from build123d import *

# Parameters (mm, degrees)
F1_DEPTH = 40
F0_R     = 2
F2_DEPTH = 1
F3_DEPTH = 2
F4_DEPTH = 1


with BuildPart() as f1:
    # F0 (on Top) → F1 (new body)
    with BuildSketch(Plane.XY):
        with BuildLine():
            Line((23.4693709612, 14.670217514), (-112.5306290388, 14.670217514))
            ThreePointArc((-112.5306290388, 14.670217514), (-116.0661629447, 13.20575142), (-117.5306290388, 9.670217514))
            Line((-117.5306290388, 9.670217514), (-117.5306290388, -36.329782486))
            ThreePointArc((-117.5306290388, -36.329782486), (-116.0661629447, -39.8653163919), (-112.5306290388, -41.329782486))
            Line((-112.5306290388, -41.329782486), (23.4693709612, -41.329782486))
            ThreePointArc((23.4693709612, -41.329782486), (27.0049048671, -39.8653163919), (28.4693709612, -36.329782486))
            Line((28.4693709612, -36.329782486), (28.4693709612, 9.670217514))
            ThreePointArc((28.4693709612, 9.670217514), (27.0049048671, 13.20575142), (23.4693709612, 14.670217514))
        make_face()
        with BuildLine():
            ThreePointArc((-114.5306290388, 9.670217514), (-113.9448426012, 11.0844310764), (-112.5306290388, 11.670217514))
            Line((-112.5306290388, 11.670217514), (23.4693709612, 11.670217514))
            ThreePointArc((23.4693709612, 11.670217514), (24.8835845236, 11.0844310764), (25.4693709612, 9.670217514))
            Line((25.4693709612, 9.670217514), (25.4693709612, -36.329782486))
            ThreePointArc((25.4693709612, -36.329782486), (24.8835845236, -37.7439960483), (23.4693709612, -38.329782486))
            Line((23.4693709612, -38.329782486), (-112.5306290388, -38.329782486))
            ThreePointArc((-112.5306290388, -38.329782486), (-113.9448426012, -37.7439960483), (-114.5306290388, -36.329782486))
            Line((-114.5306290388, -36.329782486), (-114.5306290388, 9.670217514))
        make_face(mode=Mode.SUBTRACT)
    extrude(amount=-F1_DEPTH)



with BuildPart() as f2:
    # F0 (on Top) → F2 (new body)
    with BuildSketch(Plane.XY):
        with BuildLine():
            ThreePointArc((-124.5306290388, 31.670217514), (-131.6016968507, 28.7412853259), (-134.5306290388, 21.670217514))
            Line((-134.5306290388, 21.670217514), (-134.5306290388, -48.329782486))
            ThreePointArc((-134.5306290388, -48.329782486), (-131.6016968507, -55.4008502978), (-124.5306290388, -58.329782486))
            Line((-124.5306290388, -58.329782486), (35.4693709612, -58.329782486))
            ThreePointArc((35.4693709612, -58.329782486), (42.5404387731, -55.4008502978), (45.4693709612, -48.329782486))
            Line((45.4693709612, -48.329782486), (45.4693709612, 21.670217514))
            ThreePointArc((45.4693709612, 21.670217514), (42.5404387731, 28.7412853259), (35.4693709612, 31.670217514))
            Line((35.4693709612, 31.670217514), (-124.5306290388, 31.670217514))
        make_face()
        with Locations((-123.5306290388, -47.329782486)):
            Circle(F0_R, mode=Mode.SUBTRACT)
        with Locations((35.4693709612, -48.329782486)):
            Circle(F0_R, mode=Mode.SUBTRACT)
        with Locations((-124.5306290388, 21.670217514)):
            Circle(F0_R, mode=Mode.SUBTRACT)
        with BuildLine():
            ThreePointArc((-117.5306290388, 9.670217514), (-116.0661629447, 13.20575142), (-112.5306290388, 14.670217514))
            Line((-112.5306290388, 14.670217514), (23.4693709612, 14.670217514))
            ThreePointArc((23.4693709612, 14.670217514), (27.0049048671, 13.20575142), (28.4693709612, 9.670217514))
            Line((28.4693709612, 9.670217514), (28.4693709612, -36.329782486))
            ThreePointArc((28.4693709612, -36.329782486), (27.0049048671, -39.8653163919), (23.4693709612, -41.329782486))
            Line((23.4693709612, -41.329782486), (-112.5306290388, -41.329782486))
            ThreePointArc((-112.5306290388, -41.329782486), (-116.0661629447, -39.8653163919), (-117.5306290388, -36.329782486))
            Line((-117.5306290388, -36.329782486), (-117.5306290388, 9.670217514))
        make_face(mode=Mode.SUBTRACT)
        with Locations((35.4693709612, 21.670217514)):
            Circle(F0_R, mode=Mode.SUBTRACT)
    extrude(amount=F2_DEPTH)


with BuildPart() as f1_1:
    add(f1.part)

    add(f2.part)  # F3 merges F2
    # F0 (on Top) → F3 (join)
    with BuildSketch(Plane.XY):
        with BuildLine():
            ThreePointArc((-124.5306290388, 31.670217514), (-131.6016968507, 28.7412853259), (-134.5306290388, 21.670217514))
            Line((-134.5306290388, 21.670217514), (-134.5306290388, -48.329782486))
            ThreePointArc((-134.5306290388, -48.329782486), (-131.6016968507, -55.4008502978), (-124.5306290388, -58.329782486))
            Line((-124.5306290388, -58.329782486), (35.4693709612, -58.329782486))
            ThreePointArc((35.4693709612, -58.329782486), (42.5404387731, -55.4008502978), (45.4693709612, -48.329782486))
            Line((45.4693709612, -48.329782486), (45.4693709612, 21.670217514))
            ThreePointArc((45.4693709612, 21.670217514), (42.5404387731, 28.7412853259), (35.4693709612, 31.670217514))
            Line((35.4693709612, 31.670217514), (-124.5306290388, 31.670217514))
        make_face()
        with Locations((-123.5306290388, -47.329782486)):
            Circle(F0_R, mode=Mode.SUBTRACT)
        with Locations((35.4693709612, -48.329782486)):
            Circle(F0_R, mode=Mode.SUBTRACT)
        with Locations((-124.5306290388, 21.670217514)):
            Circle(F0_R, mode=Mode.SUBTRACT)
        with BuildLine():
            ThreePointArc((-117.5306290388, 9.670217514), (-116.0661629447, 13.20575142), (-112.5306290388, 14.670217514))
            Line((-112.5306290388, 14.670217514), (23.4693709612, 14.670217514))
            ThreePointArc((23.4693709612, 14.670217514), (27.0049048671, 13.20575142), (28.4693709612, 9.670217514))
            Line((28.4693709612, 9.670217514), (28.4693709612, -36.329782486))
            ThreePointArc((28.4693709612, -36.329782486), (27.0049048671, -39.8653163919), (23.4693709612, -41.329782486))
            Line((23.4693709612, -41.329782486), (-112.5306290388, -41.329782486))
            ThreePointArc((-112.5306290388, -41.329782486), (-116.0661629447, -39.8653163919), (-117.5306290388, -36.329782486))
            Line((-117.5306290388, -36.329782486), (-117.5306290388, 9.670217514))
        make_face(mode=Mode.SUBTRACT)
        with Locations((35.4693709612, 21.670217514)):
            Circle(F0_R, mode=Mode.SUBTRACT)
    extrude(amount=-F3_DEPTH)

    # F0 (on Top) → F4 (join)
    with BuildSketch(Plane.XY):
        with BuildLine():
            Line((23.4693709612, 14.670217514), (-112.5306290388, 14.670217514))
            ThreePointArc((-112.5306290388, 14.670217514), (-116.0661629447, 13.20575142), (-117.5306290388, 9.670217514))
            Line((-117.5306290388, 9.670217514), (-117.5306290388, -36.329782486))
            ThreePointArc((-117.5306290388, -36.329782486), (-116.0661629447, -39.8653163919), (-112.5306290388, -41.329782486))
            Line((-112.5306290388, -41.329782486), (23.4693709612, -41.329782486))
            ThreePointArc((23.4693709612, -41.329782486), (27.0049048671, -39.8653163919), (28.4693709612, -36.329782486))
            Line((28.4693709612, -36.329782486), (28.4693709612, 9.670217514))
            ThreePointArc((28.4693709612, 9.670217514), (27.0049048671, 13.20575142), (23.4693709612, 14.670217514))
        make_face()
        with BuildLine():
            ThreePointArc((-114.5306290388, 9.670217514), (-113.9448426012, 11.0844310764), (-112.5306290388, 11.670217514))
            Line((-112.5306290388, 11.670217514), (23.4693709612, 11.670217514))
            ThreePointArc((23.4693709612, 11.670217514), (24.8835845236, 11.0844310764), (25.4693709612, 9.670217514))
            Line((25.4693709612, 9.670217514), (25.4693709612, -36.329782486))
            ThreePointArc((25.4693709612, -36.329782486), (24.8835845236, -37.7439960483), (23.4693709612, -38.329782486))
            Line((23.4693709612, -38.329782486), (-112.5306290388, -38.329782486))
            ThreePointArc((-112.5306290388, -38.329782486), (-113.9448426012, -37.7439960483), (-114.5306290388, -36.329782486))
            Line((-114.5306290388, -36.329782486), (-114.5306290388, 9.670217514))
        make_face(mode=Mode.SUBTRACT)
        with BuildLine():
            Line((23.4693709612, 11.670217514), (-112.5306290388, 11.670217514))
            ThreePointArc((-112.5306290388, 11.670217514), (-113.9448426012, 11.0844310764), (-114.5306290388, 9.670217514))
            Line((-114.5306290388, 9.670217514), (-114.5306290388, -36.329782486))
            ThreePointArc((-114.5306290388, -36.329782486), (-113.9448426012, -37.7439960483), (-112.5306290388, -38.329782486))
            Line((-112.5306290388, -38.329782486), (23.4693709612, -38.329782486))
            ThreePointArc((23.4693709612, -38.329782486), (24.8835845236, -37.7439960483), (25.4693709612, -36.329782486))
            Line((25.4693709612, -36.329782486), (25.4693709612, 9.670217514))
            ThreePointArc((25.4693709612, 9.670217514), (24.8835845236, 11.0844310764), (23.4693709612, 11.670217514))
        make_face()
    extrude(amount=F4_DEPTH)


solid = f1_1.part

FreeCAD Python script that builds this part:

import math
import FreeCAD as App
import Part
import Sketcher

V = App.Vector

doc = App.newDocument("Part")
body = doc.addObject("PartDesign::Body", "Body")

# Sketch on XY plane
sketch1 = body.newObject("Sketcher::SketchObject", "Sketch")
sketch1.AttachmentSupport = (doc.getObject("XY_Plane"), [""])
sketch1.MapMode = "FlatFace"
sketch1.addGeometry([
    Part.LineSegment(V(23.5, 14.7, 0), V(-112.5, 14.7, 0)),  # 0
    Part.ArcOfCircle(Part.Circle(V(-112.5, 9.7, 0), V(0, 0, 1), 5), math.radians(90), math.radians(180)),  # 1
    Part.LineSegment(V(-117.5, 9.7, 0), V(-117.5, -36.3, 0)),  # 2
    Part.ArcOfCircle(Part.Circle(V(-112.5, -36.3, 0), V(0, 0, 1), 5), math.radians(180), math.radians(270)),  # 3
    Part.LineSegment(V(-112.5, -41.3, 0), V(23.5, -41.3, 0)),  # 4
    Part.ArcOfCircle(Part.Circle(V(23.5, -36.3, 0), V(0, 0, 1), 5), math.radians(-90), math.radians(0)),  # 5
    Part.LineSegment(V(28.5, -36.3, 0), V(28.5, 9.7, 0)),  # 6
    Part.ArcOfCircle(Part.Circle(V(23.5, 9.7, 0), V(0, 0, 1), 5), math.radians(0), math.radians(90)),  # 7
    Part.LineSegment(V(-114.5, -36.3, 0), V(-114.5, 9.7, 0)),  # 8
    Part.ArcOfCircle(Part.Circle(V(-112.5, 9.7, 0), V(0, 0, 1), 2), math.radians(90), math.radians(180)),  # 9
    Part.LineSegment(V(-112.5, 11.7, 0), V(23.5, 11.7, 0)),  # 10
    Part.ArcOfCircle(Part.Circle(V(23.5, 9.7, 0), V(0, 0, 1), 2), math.radians(0), math.radians(90)),  # 11
    Part.LineSegment(V(25.5, 9.7, 0), V(25.5, -36.3, 0)),  # 12
    Part.ArcOfCircle(Part.Circle(V(23.5, -36.3, 0), V(0, 0, 1), 2), math.radians(-90), math.radians(0)),  # 13
    Part.LineSegment(V(23.5, -38.3, 0), V(-112.5, -38.3, 0)),  # 14
    Part.ArcOfCircle(Part.Circle(V(-112.5, -36.3, 0), V(0, 0, 1), 2), math.radians(180), math.radians(270)),  # 15
], False)
sketch1.addConstraint([
    Sketcher.Constraint("Tangent", 0, 2, 1, 1),
    Sketcher.Constraint("Tangent", 1, 2, 2, 1),
    Sketcher.Constraint("Tangent", 2, 2, 3, 1),
    Sketcher.Constraint("Tangent", 3, 2, 4, 1),
    Sketcher.Constraint("Tangent", 4, 2, 5, 1),
    Sketcher.Constraint("Tangent", 5, 2, 6, 1),
    Sketcher.Constraint("Tangent", 6, 2, 7, 1),
    Sketcher.Constraint("Tangent", 7, 2, 0, 1),
    Sketcher.Constraint("Tangent", 8, 2, 9, 2),
    Sketcher.Constraint("Tangent", 9, 1, 10, 1),
    Sketcher.Constraint("Tangent", 10, 2, 11, 2),
    Sketcher.Constraint("Tangent", 11, 1, 12, 1),
    Sketcher.Constraint("Tangent", 12, 2, 13, 2),
    Sketcher.Constraint("Tangent", 13, 1, 14, 1),
    Sketcher.Constraint("Tangent", 14, 2, 15, 2),
    Sketcher.Constraint("Tangent", 15, 1, 8, 1),
    Sketcher.Constraint("Horizontal", 0),
    Sketcher.Constraint("Vertical", 2),
    Sketcher.Constraint("Horizontal", 4),
    Sketcher.Constraint("Vertical", 6),
    Sketcher.Constraint("Vertical", 8),
    Sketcher.Constraint("Horizontal", 10),
    Sketcher.Constraint("Vertical", 12),
    Sketcher.Constraint("Horizontal", 14),
    Sketcher.Constraint("Coincident", 9, 3, 1, 3),
    Sketcher.Constraint("Coincident", 11, 3, 7, 3),
    Sketcher.Constraint("Coincident", 13, 3, 5, 3),
    Sketcher.Constraint("Equal", 1, 3),
    Sketcher.Constraint("Equal", 3, 5),
    Sketcher.Constraint("Equal", 5, 7),
    Sketcher.Constraint("Equal", 13, 15),
    Sketcher.Constraint("Radius", 1, 5.0),
    Sketcher.Constraint("Radius", 9, 2.0),
    Sketcher.Constraint("DistanceX", 0, 2, 0, 1, 136.0),
    Sketcher.Constraint("DistanceY", 2, 2, 2, 1, 46.0),
    Sketcher.Constraint("DistanceX", 1, 3, -1, 1, 112.530629),
    Sketcher.Constraint("DistanceY", -1, 1, 1, 3, 9.670218),
])
pad1 = body.newObject("PartDesign::Pad", "Pad")
pad1.Profile = sketch1
pad1.Length = 40
pad1.Reversed = True
body2 = doc.addObject("PartDesign::Body", "Body001")

# Sketch on XY plane
sketch2 = body2.newObject("Sketcher::SketchObject", "Sketch001")
sketch2.AttachmentSupport = (doc.getObject("XY_Plane001"), [""])
sketch2.MapMode = "FlatFace"
sketch2.addGeometry([
    Part.ArcOfCircle(Part.Circle(V(-124.5, 21.7, 0), V(0, 0, 1), 10), math.radians(90), math.radians(180)),  # 0
    Part.LineSegment(V(-134.5, 21.7, 0), V(-134.5, -48.3, 0)),  # 1
    Part.ArcOfCircle(Part.Circle(V(-124.5, -48.3, 0), V(0, 0, 1), 10), math.radians(180), math.radians(270)),  # 2
    Part.LineSegment(V(-124.5, -58.3, 0), V(35.5, -58.3, 0)),  # 3
    Part.ArcOfCircle(Part.Circle(V(35.5, -48.3, 0), V(0, 0, 1), 10), math.radians(-90), math.radians(0)),  # 4
    Part.LineSegment(V(45.5, -48.3, 0), V(45.5, 21.7, 0)),  # 5
    Part.ArcOfCircle(Part.Circle(V(35.5, 21.7, 0), V(0, 0, 1), 10), math.radians(0), math.radians(90)),  # 6
    Part.LineSegment(V(35.5, 31.7, 0), V(-124.5, 31.7, 0)),  # 7
    Part.Circle(V(-123.5, -47.3, 0), V(0, 0, 1), 2),  # 8
    Part.Circle(V(35.5, -48.3, 0), V(0, 0, 1), 2),  # 9
    Part.Circle(V(-124.5, 21.7, 0), V(0, 0, 1), 2),  # 10
    Part.LineSegment(V(-117.5, -36.3, 0), V(-117.5, 9.7, 0)),  # 11
    Part.ArcOfCircle(Part.Circle(V(-112.5, 9.7, 0), V(0, 0, 1), 5), math.radians(90), math.radians(180)),  # 12
    Part.LineSegment(V(-112.5, 14.7, 0), V(23.5, 14.7, 0)),  # 13
    Part.ArcOfCircle(Part.Circle(V(23.5, 9.7, 0), V(0, 0, 1), 5), math.radians(0), math.radians(90)),  # 14
    Part.LineSegment(V(28.5, 9.7, 0), V(28.5, -36.3, 0)),  # 15
    Part.ArcOfCircle(Part.Circle(V(23.5, -36.3, 0), V(0, 0, 1), 5), math.radians(-90), math.radians(0)),  # 16
    Part.LineSegment(V(23.5, -41.3, 0), V(-112.5, -41.3, 0)),  # 17
    Part.ArcOfCircle(Part.Circle(V(-112.5, -36.3, 0), V(0, 0, 1), 5), math.radians(180), math.radians(270)),  # 18
    Part.Circle(V(35.5, 21.7, 0), V(0, 0, 1), 2),  # 19
], False)
sketch2.addConstraint([
    Sketcher.Constraint("Tangent", 0, 2, 1, 1),
    Sketcher.Constraint("Tangent", 1, 2, 2, 1),
    Sketcher.Constraint("Tangent", 2, 2, 3, 1),
    Sketcher.Constraint("Tangent", 3, 2, 4, 1),
    Sketcher.Constraint("Tangent", 4, 2, 5, 1),
    Sketcher.Constraint("Tangent", 5, 2, 6, 1),
    Sketcher.Constraint("Tangent", 6, 2, 7, 1),
    Sketcher.Constraint("Tangent", 7, 2, 0, 1),
    Sketcher.Constraint("Tangent", 11, 2, 12, 2),
    Sketcher.Constraint("Tangent", 12, 1, 13, 1),
    Sketcher.Constraint("Tangent", 13, 2, 14, 2),
    Sketcher.Constraint("Tangent", 14, 1, 15, 1),
    Sketcher.Constraint("Tangent", 15, 2, 16, 2),
    Sketcher.Constraint("Tangent", 16, 1, 17, 1),
    Sketcher.Constraint("Tangent", 17, 2, 18, 2),
    Sketcher.Constraint("Tangent", 18, 1, 11, 1),
    Sketcher.Constraint("Vertical", 1),
    Sketcher.Constraint("Horizontal", 3),
    Sketcher.Constraint("Vertical", 5),
    Sketcher.Constraint("Horizontal", 7),
    Sketcher.Constraint("Vertical", 11),
    Sketcher.Constraint("Horizontal", 13),
    Sketcher.Constraint("Vertical", 15),
    Sketcher.Constraint("Horizontal", 17),
    Sketcher.Constraint("Coincident", 9, 3, 4, 3),
    Sketcher.Constraint("Coincident", 10, 3, 0, 3),
    Sketcher.Constraint("Coincident", 19, 3, 6, 3),
    Sketcher.Constraint("Equal", 0, 2),
    Sketcher.Constraint("Equal", 2, 4),
    Sketcher.Constraint("Equal", 4, 6),
    Sketcher.Constraint("Equal", 8, 9),
    Sketcher.Constraint("Equal", 9, 10),
    Sketcher.Constraint("Equal", 12, 14),
    Sketcher.Constraint("Equal", 14, 16),
    Sketcher.Constraint("Equal", 16, 18),
    Sketcher.Constraint("Equal", 10, 19),
    Sketcher.Constraint("Diameter", 8, 4.0),
    Sketcher.Constraint("Radius", 0, 10.0),
    Sketcher.Constraint("Radius", 12, 5.0),
    Sketcher.Constraint("DistanceX", 3, 1, 3, 2, 160.0),
    Sketcher.Constraint("DistanceX", 13, 1, 13, 2, 136.0),
    Sketcher.Constraint("DistanceY", 1, 2, 1, 1, 70.0),
    Sketcher.Constraint("DistanceY", 11, 1, 11, 2, 46.0),
    Sketcher.Constraint("DistanceX", 2, 3, 8, 3, 1.0),
    Sketcher.Constraint("DistanceY", 2, 3, 8, 3, 1.0),
    Sketcher.Constraint("DistanceX", 0, 3, 12, 3, 12.0),
    Sketcher.Constraint("DistanceY", 12, 3, 0, 3, 12.0),
    Sketcher.Constraint("DistanceX", 0, 3, -1, 1, 124.530629),
    Sketcher.Constraint("DistanceY", -1, 1, 0, 3, 21.670218),
])
pad2 = body2.newObject("PartDesign::Pad", "Pad001")
pad2.Profile = sketch2
pad2.Length = 1
body.AllowCompound = True
doc.recompute()

boolean = body.newObject("PartDesign::Boolean", "Boolean")
boolean.Type = "Fuse"
boolean.addObjects([body2])

# Sketch on XY plane
sketch3 = body.newObject("Sketcher::SketchObject", "Sketch002")
sketch3.AttachmentSupport = (doc.getObject("XY_Plane"), [""])
sketch3.MapMode = "FlatFace"
sketch3.addGeometry([
    Part.ArcOfCircle(Part.Circle(V(-124.5, 21.7, 0), V(0, 0, 1), 10), math.radians(90), math.radians(180)),  # 0
    Part.LineSegment(V(-134.5, 21.7, 0), V(-134.5, -48.3, 0)),  # 1
    Part.ArcOfCircle(Part.Circle(V(-124.5, -48.3, 0), V(0, 0, 1), 10), math.radians(180), math.radians(270)),  # 2
    Part.LineSegment(V(-124.5, -58.3, 0), V(35.5, -58.3, 0)),  # 3
    Part.ArcOfCircle(Part.Circle(V(35.5, -48.3, 0), V(0, 0, 1), 10), math.radians(-90), math.radians(0)),  # 4
    Part.LineSegment(V(45.5, -48.3, 0), V(45.5, 21.7, 0)),  # 5
    Part.ArcOfCircle(Part.Circle(V(35.5, 21.7, 0), V(0, 0, 1), 10), math.radians(0), math.radians(90)),  # 6
    Part.LineSegment(V(35.5, 31.7, 0), V(-124.5, 31.7, 0)),  # 7
    Part.Circle(V(-123.5, -47.3, 0), V(0, 0, 1), 2),  # 8
    Part.Circle(V(35.5, -48.3, 0), V(0, 0, 1), 2),  # 9
    Part.Circle(V(-124.5, 21.7, 0), V(0, 0, 1), 2),  # 10
    Part.LineSegment(V(-117.5, -36.3, 0), V(-117.5, 9.7, 0)),  # 11
    Part.ArcOfCircle(Part.Circle(V(-112.5, 9.7, 0), V(0, 0, 1), 5), math.radians(90), math.radians(180)),  # 12
    Part.LineSegment(V(-112.5, 14.7, 0), V(23.5, 14.7, 0)),  # 13
    Part.ArcOfCircle(Part.Circle(V(23.5, 9.7, 0), V(0, 0, 1), 5), math.radians(0), math.radians(90)),  # 14
    Part.LineSegment(V(28.5, 9.7, 0), V(28.5, -36.3, 0)),  # 15
    Part.ArcOfCircle(Part.Circle(V(23.5, -36.3, 0), V(0, 0, 1), 5), math.radians(-90), math.radians(0)),  # 16
    Part.LineSegment(V(23.5, -41.3, 0), V(-112.5, -41.3, 0)),  # 17
    Part.ArcOfCircle(Part.Circle(V(-112.5, -36.3, 0), V(0, 0, 1), 5), math.radians(180), math.radians(270)),  # 18
    Part.Circle(V(35.5, 21.7, 0), V(0, 0, 1), 2),  # 19
], False)
sketch3.addConstraint([
    Sketcher.Constraint("Tangent", 0, 2, 1, 1),
    Sketcher.Constraint("Tangent", 1, 2, 2, 1),
    Sketcher.Constraint("Tangent", 2, 2, 3, 1),
    Sketcher.Constraint("Tangent", 3, 2, 4, 1),
    Sketcher.Constraint("Tangent", 4, 2, 5, 1),
    Sketcher.Constraint("Tangent", 5, 2, 6, 1),
    Sketcher.Constraint("Tangent", 6, 2, 7, 1),
    Sketcher.Constraint("Tangent", 7, 2, 0, 1),
    Sketcher.Constraint("Tangent", 11, 2, 12, 2),
    Sketcher.Constraint("Tangent", 12, 1, 13, 1),
    Sketcher.Constraint("Tangent", 13, 2, 14, 2),
    Sketcher.Constraint("Tangent", 14, 1, 15, 1),
    Sketcher.Constraint("Tangent", 15, 2, 16, 2),
    Sketcher.Constraint("Tangent", 16, 1, 17, 1),
    Sketcher.Constraint("Tangent", 17, 2, 18, 2),
    Sketcher.Constraint("Tangent", 18, 1, 11, 1),
    Sketcher.Constraint("Vertical", 1),
    Sketcher.Constraint("Horizontal", 3),
    Sketcher.Constraint("Vertical", 5),
    Sketcher.Constraint("Horizontal", 7),
    Sketcher.Constraint("Vertical", 11),
    Sketcher.Constraint("Horizontal", 13),
    Sketcher.Constraint("Vertical", 15),
    Sketcher.Constraint("Horizontal", 17),
    Sketcher.Constraint("Coincident", 9, 3, 4, 3),
    Sketcher.Constraint("Coincident", 10, 3, 0, 3),
    Sketcher.Constraint("Coincident", 19, 3, 6, 3),
    Sketcher.Constraint("Equal", 0, 2),
    Sketcher.Constraint("Equal", 2, 4),
    Sketcher.Constraint("Equal", 4, 6),
    Sketcher.Constraint("Equal", 8, 9),
    Sketcher.Constraint("Equal", 9, 10),
    Sketcher.Constraint("Equal", 12, 14),
    Sketcher.Constraint("Equal", 14, 16),
    Sketcher.Constraint("Equal", 16, 18),
    Sketcher.Constraint("Equal", 10, 19),
    Sketcher.Constraint("Diameter", 8, 4.0),
    Sketcher.Constraint("Radius", 0, 10.0),
    Sketcher.Constraint("Radius", 12, 5.0),
    Sketcher.Constraint("DistanceX", 3, 1, 3, 2, 160.0),
    Sketcher.Constraint("DistanceX", 13, 1, 13, 2, 136.0),
    Sketcher.Constraint("DistanceY", 1, 2, 1, 1, 70.0),
    Sketcher.Constraint("DistanceY", 11, 1, 11, 2, 46.0),
    Sketcher.Constraint("DistanceX", 2, 3, 8, 3, 1.0),
    Sketcher.Constraint("DistanceY", 2, 3, 8, 3, 1.0),
    Sketcher.Constraint("DistanceX", 0, 3, 12, 3, 12.0),
    Sketcher.Constraint("DistanceY", 12, 3, 0, 3, 12.0),
    Sketcher.Constraint("DistanceX", 0, 3, -1, 1, 124.530629),
    Sketcher.Constraint("DistanceY", -1, 1, 0, 3, 21.670218),
])
pad3 = body.newObject("PartDesign::Pad", "Pad002")
pad3.Profile = sketch3
pad3.Length = 2
pad3.Reversed = True

# Sketch on XY plane
sketch4 = body.newObject("Sketcher::SketchObject", "Sketch003")
sketch4.AttachmentSupport = (doc.getObject("XY_Plane"), [""])
sketch4.MapMode = "FlatFace"
sketch4.addGeometry([
    Part.LineSegment(V(23, 15, 0), V(-113, 15, 0)),  # 0
    Part.ArcOfCircle(Part.Circle(V(-113, 10, 0), V(0, 0, 1), 5), math.radians(90), math.radians(180)),  # 1
    Part.LineSegment(V(-118, 10, 0), V(-118, -36, 0)),  # 2
    Part.ArcOfCircle(Part.Circle(V(-113, -36, 0), V(0, 0, 1), 5), math.radians(180), math.radians(270)),  # 3
    Part.LineSegment(V(-113, -41, 0), V(23, -41, 0)),  # 4
    Part.ArcOfCircle(Part.Circle(V(23, -36, 0), V(0, 0, 1), 5), math.radians(-90), math.radians(0)),  # 5
    Part.LineSegment(V(28, -36, 0), V(28, 10, 0)),  # 6
    Part.ArcOfCircle(Part.Circle(V(23, 10, 0), V(0, 0, 1), 5), math.radians(0), math.radians(90)),  # 7
], False)
sketch4.addConstraint([
    Sketcher.Constraint("Tangent", 0, 2, 1, 1),
    Sketcher.Constraint("Tangent", 1, 2, 2, 1),
    Sketcher.Constraint("Tangent", 2, 2, 3, 1),
    Sketcher.Constraint("Tangent", 3, 2, 4, 1),
    Sketcher.Constraint("Tangent", 4, 2, 5, 1),
    Sketcher.Constraint("Tangent", 5, 2, 6, 1),
    Sketcher.Constraint("Tangent", 6, 2, 7, 1),
    Sketcher.Constraint("Tangent", 7, 2, 0, 1),
    Sketcher.Constraint("Horizontal", 0),
    Sketcher.Constraint("Vertical", 2),
    Sketcher.Constraint("Horizontal", 4),
    Sketcher.Constraint("Vertical", 6),
    Sketcher.Constraint("Equal", 1, 3),
    Sketcher.Constraint("Equal", 3, 5),
    Sketcher.Constraint("Equal", 5, 7),
    Sketcher.Constraint("Radius", 1, 5.0),
    Sketcher.Constraint("DistanceX", 0, 2, 0, 1, 136.0),
    Sketcher.Constraint("DistanceY", 2, 2, 2, 1, 46.0),
    Sketcher.Constraint("DistanceX", 1, 3, -1, 1, 112.530629),
    Sketcher.Constraint("DistanceY", -1, 1, 1, 3, 9.670218),
])
pad4 = body.newObject("PartDesign::Pad", "Pad003")
pad4.Profile = sketch4
pad4.Length = 1

doc.recompute()
